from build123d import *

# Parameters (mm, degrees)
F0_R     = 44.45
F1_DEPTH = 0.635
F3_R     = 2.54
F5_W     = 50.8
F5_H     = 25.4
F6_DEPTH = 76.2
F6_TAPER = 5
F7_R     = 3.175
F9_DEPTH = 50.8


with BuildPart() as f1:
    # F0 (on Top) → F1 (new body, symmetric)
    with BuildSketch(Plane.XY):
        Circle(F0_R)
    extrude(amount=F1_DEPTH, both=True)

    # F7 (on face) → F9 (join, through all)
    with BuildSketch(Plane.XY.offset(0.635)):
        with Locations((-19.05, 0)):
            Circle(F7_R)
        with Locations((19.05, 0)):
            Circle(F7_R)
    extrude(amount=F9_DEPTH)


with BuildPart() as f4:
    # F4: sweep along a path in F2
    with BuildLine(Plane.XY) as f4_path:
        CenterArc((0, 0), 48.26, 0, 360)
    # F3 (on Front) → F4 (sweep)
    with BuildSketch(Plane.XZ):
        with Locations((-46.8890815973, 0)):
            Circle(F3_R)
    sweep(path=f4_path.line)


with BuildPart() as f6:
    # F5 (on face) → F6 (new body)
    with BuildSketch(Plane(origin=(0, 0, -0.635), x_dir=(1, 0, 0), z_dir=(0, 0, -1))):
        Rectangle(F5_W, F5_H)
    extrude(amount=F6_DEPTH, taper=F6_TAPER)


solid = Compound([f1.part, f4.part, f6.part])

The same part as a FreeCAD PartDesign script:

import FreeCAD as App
import Part
import Sketcher
from FreeCAD import Vector
Q = App.Units.Quantity


def add_polygon(sketch, points):
    """Adds a closed chain of lines whose ends are joined by coincident constraints."""
    first, n = sketch.GeometryCount, len(points)
    for a, b in zip(points, points[1:] + points[:1]):
        sketch.addGeometry(Part.LineSegment(App.Vector(*a, 0), App.Vector(*b, 0)), False)
    for i in range(n):
        sketch.addConstraint(Sketcher.Constraint("Coincident", first + i, 2, first + (i + 1) % n, 1))

doc = App.newDocument("Part")
body = doc.addObject("PartDesign::Body", "Body")

sketch1 = doc.addObject("Sketcher::SketchObject", "Sketch")
body.addObject(sketch1)
sketch1.AttachmentSupport = (doc.XY_Plane, [""])
sketch1.MapMode = "FlatFace"
sketch1.addGeometry(Part.Circle(Vector(0, 0, 0), Vector(0, 0, 1), 44), False)
sketch1.addConstraint([
    Sketcher.Constraint("Coincident", 0, 3, -1, 1),
    Sketcher.Constraint("Diameter", 0, Q("3.5 in")),
])
pad1 = doc.addObject("PartDesign::Pad", "Pad")
body.addObject(pad1)
pad1.Profile = sketch1
pad1.Length = Q("0.05 in")
pad1.Midplane = True

sketch2 = doc.addObject("Sketcher::SketchObject", "Sketch001")
body.addObject(sketch2)
sketch2.AttachmentSupport = (doc.XY_Plane, [""])
sketch2.MapMode = "FlatFace"
sketch2.AttachmentOffset = App.Placement(Vector(0, 0, 0.025 * 25.4), App.Rotation())
sketch2.addGeometry([
    Part.Circle(Vector(-19.1, 0, 0), Vector(0, 0, 1), 3.2),
    Part.Circle(Vector(19.1, 0, 0), Vector(0, 0, 1), 3.2),
], False)
sketch2.addConstraint([
    Sketcher.Constraint("Equal", 0, 1),
    Sketcher.Constraint("Symmetric", 0, 3, 1, 3, -1, 1),
    Sketcher.Constraint("PointOnObject", 0, 3, -1),
    Sketcher.Constraint("Diameter", 0, Q("0.25 in")),
    Sketcher.Constraint("DistanceX", 0, 3, 1, 3, Q("1.5 in")),
])
pad2 = doc.addObject("PartDesign::Pad", "Pad001")
body.addObject(pad2)
pad2.Profile = sketch2
pad2.Length = Q("2 in")
body2 = doc.addObject("PartDesign::Body", "Body001")

sketch3 = doc.addObject("Sketcher::SketchObject", "Sketch002")
body2.addObject(sketch3)
sketch3.AttachmentSupport = (doc.getObject("XZ_Plane001"), [""])
sketch3.MapMode = "FlatFace"
sketch3.addGeometry(Part.Circle(Vector(-46.9, 0, 0), Vector(0, 0, 1), 2.5), False)
sketch3.addConstraint([
    Sketcher.Constraint("PointOnObject", 0, 3, -1),
    Sketcher.Constraint("Diameter", 0, Q("0.2 in")),
    Sketcher.Constraint("DistanceX", 0, 3, -1, 1, 46.889082),
])

sketch4 = doc.addObject("Sketcher::SketchObject", "Sketch003")
body2.addObject(sketch4)
sketch4.AttachmentSupport = (doc.getObject("XY_Plane001"), [""])
sketch4.MapMode = "FlatFace"
sketch4.addGeometry(Part.Circle(Vector(0, 0, 0), Vector(0, 0, 1), 48), False)
sketch4.addConstraint([
    Sketcher.Constraint("Coincident", 0, 3, -1, 1),
    Sketcher.Constraint("Diameter", 0, Q("3.8 in")),
])
doc.recompute()

additivepipe = doc.addObject("PartDesign::AdditivePipe", "AdditivePipe")
body2.addObject(additivepipe)
additivepipe.Profile = sketch3
additivepipe.Spine = (sketch4, ["Edge1"])
body3 = doc.addObject("PartDesign::Body", "Body002")

sketch5 = doc.addObject("Sketcher::SketchObject", "Sketch004")
body3.addObject(sketch5)
sketch5.AttachmentSupport = (doc.getObject("XY_Plane002"), [""])
sketch5.MapMode = "FlatFace"
sketch5.AttachmentOffset = App.Placement(Vector(0, 0, -0.025 * 25.4), App.Rotation())
add_polygon(sketch5, [(-25, -13), (-25, 13), (25, 13), (25, -13)])
sketch5.addConstraint([
    Sketcher.Constraint("Vertical", 0),
    Sketcher.Constraint("Horizontal", 1),
    Sketcher.Constraint("Vertical", 2),
    Sketcher.Constraint("Horizontal", 3),
    Sketcher.Constraint("Symmetric", 0, 2, 2, 2, -1, 1),
    Sketcher.Constraint("DistanceX", 1, 1, 1, 2, Q("2 in")),
    Sketcher.Constraint("DistanceY", 0, 1, 0, 2, Q("1 in")),
])
pad3 = doc.addObject("PartDesign::Pad", "Pad002")
body3.addObject(pad3)
pad3.Profile = sketch5
pad3.Length = Q("3 in")
pad3.Reversed = True
pad3.TaperAngle = -5

doc.recompute()
